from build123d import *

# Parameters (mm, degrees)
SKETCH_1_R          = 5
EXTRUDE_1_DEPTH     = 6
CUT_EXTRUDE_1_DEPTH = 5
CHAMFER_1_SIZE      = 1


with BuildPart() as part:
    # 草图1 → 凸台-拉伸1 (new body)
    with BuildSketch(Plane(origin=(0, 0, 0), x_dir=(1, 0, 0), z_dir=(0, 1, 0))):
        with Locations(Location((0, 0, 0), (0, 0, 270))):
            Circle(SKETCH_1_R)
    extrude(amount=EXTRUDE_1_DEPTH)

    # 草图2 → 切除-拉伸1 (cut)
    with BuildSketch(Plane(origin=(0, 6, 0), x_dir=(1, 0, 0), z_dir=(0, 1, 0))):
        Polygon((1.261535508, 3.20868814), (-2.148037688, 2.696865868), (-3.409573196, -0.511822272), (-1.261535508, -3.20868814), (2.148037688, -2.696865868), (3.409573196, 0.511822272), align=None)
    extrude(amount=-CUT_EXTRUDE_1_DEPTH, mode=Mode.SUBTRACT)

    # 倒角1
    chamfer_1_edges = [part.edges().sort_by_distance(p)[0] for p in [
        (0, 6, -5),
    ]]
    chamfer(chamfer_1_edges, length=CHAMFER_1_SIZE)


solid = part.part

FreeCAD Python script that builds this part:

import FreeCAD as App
import Part
import Sketcher
from FreeCAD import Vector
Q = App.Units.Quantity


def edges_at(feature, points):
    """Names of the edges that pass closest to the given points."""
    edges = feature.Shape.Edges
    near = lambda p: min(range(len(edges)), key=lambda i: edges[i].distToShape(Part.Vertex(*p))[0])
    return sorted({f"Edge{near(p) + 1}" for p in points})


def add_polygon(sketch, points):
    """Adds a closed chain of lines whose ends are joined by coincident constraints."""
    first, n = sketch.GeometryCount, len(points)
    for a, b in zip(points, points[1:] + points[:1]):
        sketch.addGeometry(Part.LineSegment(App.Vector(*a, 0), App.Vector(*b, 0)), False)
    for i in range(n):
        sketch.addConstraint(Sketcher.Constraint("Coincident", first + i, 2, first + (i + 1) % n, 1))

doc = App.newDocument("Part")
params = doc.addObject("Spreadsheet::Sheet", "Params")
for row, (alias, value) in enumerate([
    ("sketch1_diameter", "10 mm"),
    ("pad1_length", "6 mm"),
    ("pocket1_length", "5 mm"),
    ("chamfer_size", "1 mm"),
], start=1):
    params.set(f"A{row}", alias)
    params.set(f"B{row}", "=" + value)
    params.setAlias(f"B{row}", alias)

body = doc.addObject("PartDesign::Body", "Body")

sketch1 = doc.addObject("Sketcher::SketchObject", "Sketch")
body.addObject(sketch1)
sketch1.AttachmentSupport = (doc.XZ_Plane, [""])
sketch1.MapMode = "FlatFace"
sketch1.addGeometry(Part.Circle(Vector(0, 0, 0), Vector(0, 0, 1), 5), False)
sketch1.addConstraint([
    Sketcher.Constraint("Coincident", 0, 3, -1, 1),
    Sketcher.Constraint("Diameter", 0, Q("10 mm")),
])
sketch1.setExpression("Constraints[1]", "Params.sketch1_diameter")
pad1 = doc.addObject("PartDesign::Pad", "Pad")
body.addObject(pad1)
pad1.Profile = sketch1
pad1.setExpression("Length", "Params.pad1_length")
pad1.Reversed = True

sketch2 = doc.addObject("Sketcher::SketchObject", "Sketch001")
body.addObject(sketch2)
sketch2.AttachmentSupport = (doc.XZ_Plane, [""])
sketch2.MapMode = "FlatFace"
sketch2.AttachmentOffset = App.Placement(Vector(0, 0, -6), App.Rotation())
add_polygon(sketch2, [(1.3, -3.2), (-2.1, -2.7), (-3.4, 0.5), (-1.3, 3.2), (2.1, 2.7), (3.4, -0.5)])
sketch2.addConstraint([
    Sketcher.Constraint("Symmetric", 0, 2, 3, 2, -1, 1),
    Sketcher.Constraint("Symmetric", 1, 2, 4, 2, -1, 1),
    Sketcher.Constraint("Symmetric", 2, 2, 5, 2, -1, 1),
    Sketcher.Constraint("Equal", 0, 1),
    Sketcher.Constraint("Equal", 1, 2),
    Sketcher.Constraint("DistanceY", -1, 1, 2, 2, Q("3.208688 mm")),
    Sketcher.Constraint("DistanceY", 0, 2, 1, 2, Q("3.208688 mm")),
    Sketcher.Constraint("DistanceX", 1, 2, 3, 2, Q("5.557611 mm")),
    Sketcher.Constraint("DistanceY", 0, 2, 3, 2, Q("5.393732 mm")),
])
pocket1 = doc.addObject("PartDesign::Pocket", "Pocket")
body.addObject(pocket1)
pocket1.Profile = sketch2
pocket1.setExpression("Length", "Params.pocket1_length")
pocket1.Reversed = True
doc.recompute()

chamfer = doc.addObject("PartDesign::Chamfer", "Chamfer")
body.addObject(chamfer)
chamfer.Base = (pocket1, edges_at(pocket1, [(0, 6, -5)]))
chamfer.setExpression("Size", "Params.chamfer_size")

doc.recompute()
